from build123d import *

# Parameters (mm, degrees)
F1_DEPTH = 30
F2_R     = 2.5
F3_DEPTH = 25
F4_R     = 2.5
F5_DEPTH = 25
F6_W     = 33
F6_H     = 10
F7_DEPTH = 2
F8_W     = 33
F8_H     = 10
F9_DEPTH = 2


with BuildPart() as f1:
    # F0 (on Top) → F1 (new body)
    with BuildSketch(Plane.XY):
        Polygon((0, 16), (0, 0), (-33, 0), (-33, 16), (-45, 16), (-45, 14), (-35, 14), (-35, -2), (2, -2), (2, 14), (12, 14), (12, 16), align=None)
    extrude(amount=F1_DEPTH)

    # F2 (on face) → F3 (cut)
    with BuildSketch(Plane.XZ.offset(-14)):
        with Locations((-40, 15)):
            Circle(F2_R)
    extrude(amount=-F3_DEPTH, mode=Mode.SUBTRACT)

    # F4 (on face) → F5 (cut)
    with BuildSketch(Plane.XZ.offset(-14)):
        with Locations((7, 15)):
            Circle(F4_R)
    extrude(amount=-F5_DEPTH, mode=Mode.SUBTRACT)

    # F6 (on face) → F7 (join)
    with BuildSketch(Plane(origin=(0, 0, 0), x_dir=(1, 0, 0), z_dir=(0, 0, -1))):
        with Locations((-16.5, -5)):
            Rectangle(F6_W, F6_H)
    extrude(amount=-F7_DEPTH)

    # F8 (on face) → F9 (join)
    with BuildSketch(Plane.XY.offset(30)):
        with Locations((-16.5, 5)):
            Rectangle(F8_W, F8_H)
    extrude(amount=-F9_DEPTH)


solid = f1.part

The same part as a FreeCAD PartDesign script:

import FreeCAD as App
import Part
import Sketcher
from FreeCAD import Vector
Q = App.Units.Quantity


def add_polygon(sketch, points):
    """Adds a closed chain of lines whose ends are joined by coincident constraints."""
    first, n = sketch.GeometryCount, len(points)
    for a, b in zip(points, points[1:] + points[:1]):
        sketch.addGeometry(Part.LineSegment(App.Vector(*a, 0), App.Vector(*b, 0)), False)
    for i in range(n):
        sketch.addConstraint(Sketcher.Constraint("Coincident", first + i, 2, first + (i + 1) % n, 1))

doc = App.newDocument("Part")
body = doc.addObject("PartDesign::Body", "Body")

sketch1 = body.newObject("Sketcher::SketchObject", "Sketch")
sketch1.AttachmentSupport = (doc.getObject("XY_Plane"), [""])
sketch1.MapMode = "FlatFace"
add_polygon(sketch1, [(0, 16), (0, 0), (-33, 0), (-33, 16), (-45, 16), (-45, 14), (-35, 14), (-35, -2), (2, -2), (2, 14), (12, 14), (12, 16)])
sketch1.addConstraint([
    Sketcher.Constraint("Vertical", 0),
    Sketcher.Constraint("Horizontal", 1),
    Sketcher.Constraint("Vertical", 2),
    Sketcher.Constraint("Horizontal", 3),
    Sketcher.Constraint("Vertical", 4),
    Sketcher.Constraint("Horizontal", 5),
    Sketcher.Constraint("Vertical", 6),
    Sketcher.Constraint("Horizontal", 7),
    Sketcher.Constraint("Vertical", 8),
    Sketcher.Constraint("Horizontal", 9),
    Sketcher.Constraint("Vertical", 10),
    Sketcher.Constraint("Horizontal", 11),
    Sketcher.Constraint("Coincident", 0, 2, -1, 1),
    Sketcher.Constraint("Horizontal", 5, 2, 8, 2),
    Sketcher.Constraint("Horizontal", 3, 2, 10, 2),
    Sketcher.Constraint("Equal", 5, 9),
    Sketcher.Constraint("Equal", 3, 11),
    Sketcher.Constraint("Equal", 2, 6),
    Sketcher.Constraint("DistanceX", 1, 2, 1, 1, Q("33 mm")),
    Sketcher.Constraint("DistanceX", 3, 2, 3, 1, Q("12 mm")),
    Sketcher.Constraint("DistanceX", 5, 1, 5, 2, Q("10 mm")),
    Sketcher.Constraint("DistanceY", 0, 2, 0, 1, Q("16 mm")),
    Sketcher.Constraint("DistanceY", 4, 2, 4, 1, Q("2 mm")),
])
pad1 = body.newObject("PartDesign::Pad", "Pad")
pad1.Profile = sketch1
pad1.Length = 30

sketch2 = body.newObject("Sketcher::SketchObject", "Sketch001")
sketch2.AttachmentSupport = (doc.getObject("XZ_Plane"), [""])
sketch2.MapMode = "FlatFace"
sketch2.AttachmentOffset = App.Placement(Vector(0, 0, -14), App.Rotation())
sketch2.addGeometry(Part.Circle(Vector(-40, 15, 0), Vector(0, 0, 1), 2.5), False)
sketch2.addConstraint([
    Sketcher.Constraint("Diameter", 0, Q("5 mm")),
    Sketcher.Constraint("DistanceX", 0, 3, -1, 1, Q("40 mm")),
    Sketcher.Constraint("DistanceY", -1, 1, 0, 3, Q("15 mm")),
])
pocket1 = body.newObject("PartDesign::Pocket", "Pocket")
pocket1.Profile = sketch2
pocket1.Length = 25

sketch3 = body.newObject("Sketcher::SketchObject", "Sketch002")
sketch3.AttachmentSupport = (doc.getObject("XZ_Plane"), [""])
sketch3.MapMode = "FlatFace"
sketch3.AttachmentOffset = App.Placement(Vector(0, 0, -14), App.Rotation())
sketch3.addGeometry(Part.Circle(Vector(7, 15, 0), Vector(0, 0, 1), 2.5), False)
sketch3.addConstraint([
    Sketcher.Constraint("Diameter", 0, Q("5 mm")),
    Sketcher.Constraint("DistanceX", -1, 1, 0, 3, Q("7 mm")),
    Sketcher.Constraint("DistanceY", -1, 1, 0, 3, Q("15 mm")),
])
pocket2 = body.newObject("PartDesign::Pocket", "Pocket001")
pocket2.Profile = sketch3
pocket2.Length = 25

sketch4 = body.newObject("Sketcher::SketchObject", "Sketch003")
sketch4.AttachmentSupport = (doc.getObject("XY_Plane"), [""])
sketch4.MapMode = "FlatFace"
add_polygon(sketch4, [(-33, 0), (-33, 10), (0, 10), (0, 0)])
sketch4.addConstraint([
    Sketcher.Constraint("Vertical", 0),
    Sketcher.Constraint("Horizontal", 1),
    Sketcher.Constraint("Vertical", 2),
    Sketcher.Constraint("Horizontal", 3),
    Sketcher.Constraint("Coincident", 2, 2, -1, 1),
    Sketcher.Constraint("DistanceX", 1, 1, 1, 2, Q("33 mm")),
    Sketcher.Constraint("DistanceY", 0, 1, 0, 2, Q("10 mm")),
])
pad2 = body.newObject("PartDesign::Pad", "Pad001")
pad2.Profile = sketch4
pad2.Length = 2

sketch5 = body.newObject("Sketcher::SketchObject", "Sketch004")
sketch5.AttachmentSupport = (doc.getObject("XY_Plane"), [""])
sketch5.MapMode = "FlatFace"
sketch5.AttachmentOffset = App.Placement(Vector(0, 0, 30), App.Rotation())
add_polygon(sketch5, [(-33, 10), (-33, 0), (0, 0), (0, 10)])
sketch5.addConstraint([
    Sketcher.Constraint("Vertical", 0),
    Sketcher.Constraint("Horizontal", 1),
    Sketcher.Constraint("Vertical", 2),
    Sketcher.Constraint("Horizontal", 3),
    Sketcher.Constraint("Coincident", 1, 2, -1, 1),
    Sketcher.Constraint("DistanceX", 1, 1, 1, 2, Q("33 mm")),
    Sketcher.Constraint("DistanceY", 0, 2, 0, 1, Q("10 mm")),
])
pad3 = body.newObject("PartDesign::Pad", "Pad002")
pad3.Profile = sketch5
pad3.Length = 2
pad3.Reversed = True

doc.recompute()
